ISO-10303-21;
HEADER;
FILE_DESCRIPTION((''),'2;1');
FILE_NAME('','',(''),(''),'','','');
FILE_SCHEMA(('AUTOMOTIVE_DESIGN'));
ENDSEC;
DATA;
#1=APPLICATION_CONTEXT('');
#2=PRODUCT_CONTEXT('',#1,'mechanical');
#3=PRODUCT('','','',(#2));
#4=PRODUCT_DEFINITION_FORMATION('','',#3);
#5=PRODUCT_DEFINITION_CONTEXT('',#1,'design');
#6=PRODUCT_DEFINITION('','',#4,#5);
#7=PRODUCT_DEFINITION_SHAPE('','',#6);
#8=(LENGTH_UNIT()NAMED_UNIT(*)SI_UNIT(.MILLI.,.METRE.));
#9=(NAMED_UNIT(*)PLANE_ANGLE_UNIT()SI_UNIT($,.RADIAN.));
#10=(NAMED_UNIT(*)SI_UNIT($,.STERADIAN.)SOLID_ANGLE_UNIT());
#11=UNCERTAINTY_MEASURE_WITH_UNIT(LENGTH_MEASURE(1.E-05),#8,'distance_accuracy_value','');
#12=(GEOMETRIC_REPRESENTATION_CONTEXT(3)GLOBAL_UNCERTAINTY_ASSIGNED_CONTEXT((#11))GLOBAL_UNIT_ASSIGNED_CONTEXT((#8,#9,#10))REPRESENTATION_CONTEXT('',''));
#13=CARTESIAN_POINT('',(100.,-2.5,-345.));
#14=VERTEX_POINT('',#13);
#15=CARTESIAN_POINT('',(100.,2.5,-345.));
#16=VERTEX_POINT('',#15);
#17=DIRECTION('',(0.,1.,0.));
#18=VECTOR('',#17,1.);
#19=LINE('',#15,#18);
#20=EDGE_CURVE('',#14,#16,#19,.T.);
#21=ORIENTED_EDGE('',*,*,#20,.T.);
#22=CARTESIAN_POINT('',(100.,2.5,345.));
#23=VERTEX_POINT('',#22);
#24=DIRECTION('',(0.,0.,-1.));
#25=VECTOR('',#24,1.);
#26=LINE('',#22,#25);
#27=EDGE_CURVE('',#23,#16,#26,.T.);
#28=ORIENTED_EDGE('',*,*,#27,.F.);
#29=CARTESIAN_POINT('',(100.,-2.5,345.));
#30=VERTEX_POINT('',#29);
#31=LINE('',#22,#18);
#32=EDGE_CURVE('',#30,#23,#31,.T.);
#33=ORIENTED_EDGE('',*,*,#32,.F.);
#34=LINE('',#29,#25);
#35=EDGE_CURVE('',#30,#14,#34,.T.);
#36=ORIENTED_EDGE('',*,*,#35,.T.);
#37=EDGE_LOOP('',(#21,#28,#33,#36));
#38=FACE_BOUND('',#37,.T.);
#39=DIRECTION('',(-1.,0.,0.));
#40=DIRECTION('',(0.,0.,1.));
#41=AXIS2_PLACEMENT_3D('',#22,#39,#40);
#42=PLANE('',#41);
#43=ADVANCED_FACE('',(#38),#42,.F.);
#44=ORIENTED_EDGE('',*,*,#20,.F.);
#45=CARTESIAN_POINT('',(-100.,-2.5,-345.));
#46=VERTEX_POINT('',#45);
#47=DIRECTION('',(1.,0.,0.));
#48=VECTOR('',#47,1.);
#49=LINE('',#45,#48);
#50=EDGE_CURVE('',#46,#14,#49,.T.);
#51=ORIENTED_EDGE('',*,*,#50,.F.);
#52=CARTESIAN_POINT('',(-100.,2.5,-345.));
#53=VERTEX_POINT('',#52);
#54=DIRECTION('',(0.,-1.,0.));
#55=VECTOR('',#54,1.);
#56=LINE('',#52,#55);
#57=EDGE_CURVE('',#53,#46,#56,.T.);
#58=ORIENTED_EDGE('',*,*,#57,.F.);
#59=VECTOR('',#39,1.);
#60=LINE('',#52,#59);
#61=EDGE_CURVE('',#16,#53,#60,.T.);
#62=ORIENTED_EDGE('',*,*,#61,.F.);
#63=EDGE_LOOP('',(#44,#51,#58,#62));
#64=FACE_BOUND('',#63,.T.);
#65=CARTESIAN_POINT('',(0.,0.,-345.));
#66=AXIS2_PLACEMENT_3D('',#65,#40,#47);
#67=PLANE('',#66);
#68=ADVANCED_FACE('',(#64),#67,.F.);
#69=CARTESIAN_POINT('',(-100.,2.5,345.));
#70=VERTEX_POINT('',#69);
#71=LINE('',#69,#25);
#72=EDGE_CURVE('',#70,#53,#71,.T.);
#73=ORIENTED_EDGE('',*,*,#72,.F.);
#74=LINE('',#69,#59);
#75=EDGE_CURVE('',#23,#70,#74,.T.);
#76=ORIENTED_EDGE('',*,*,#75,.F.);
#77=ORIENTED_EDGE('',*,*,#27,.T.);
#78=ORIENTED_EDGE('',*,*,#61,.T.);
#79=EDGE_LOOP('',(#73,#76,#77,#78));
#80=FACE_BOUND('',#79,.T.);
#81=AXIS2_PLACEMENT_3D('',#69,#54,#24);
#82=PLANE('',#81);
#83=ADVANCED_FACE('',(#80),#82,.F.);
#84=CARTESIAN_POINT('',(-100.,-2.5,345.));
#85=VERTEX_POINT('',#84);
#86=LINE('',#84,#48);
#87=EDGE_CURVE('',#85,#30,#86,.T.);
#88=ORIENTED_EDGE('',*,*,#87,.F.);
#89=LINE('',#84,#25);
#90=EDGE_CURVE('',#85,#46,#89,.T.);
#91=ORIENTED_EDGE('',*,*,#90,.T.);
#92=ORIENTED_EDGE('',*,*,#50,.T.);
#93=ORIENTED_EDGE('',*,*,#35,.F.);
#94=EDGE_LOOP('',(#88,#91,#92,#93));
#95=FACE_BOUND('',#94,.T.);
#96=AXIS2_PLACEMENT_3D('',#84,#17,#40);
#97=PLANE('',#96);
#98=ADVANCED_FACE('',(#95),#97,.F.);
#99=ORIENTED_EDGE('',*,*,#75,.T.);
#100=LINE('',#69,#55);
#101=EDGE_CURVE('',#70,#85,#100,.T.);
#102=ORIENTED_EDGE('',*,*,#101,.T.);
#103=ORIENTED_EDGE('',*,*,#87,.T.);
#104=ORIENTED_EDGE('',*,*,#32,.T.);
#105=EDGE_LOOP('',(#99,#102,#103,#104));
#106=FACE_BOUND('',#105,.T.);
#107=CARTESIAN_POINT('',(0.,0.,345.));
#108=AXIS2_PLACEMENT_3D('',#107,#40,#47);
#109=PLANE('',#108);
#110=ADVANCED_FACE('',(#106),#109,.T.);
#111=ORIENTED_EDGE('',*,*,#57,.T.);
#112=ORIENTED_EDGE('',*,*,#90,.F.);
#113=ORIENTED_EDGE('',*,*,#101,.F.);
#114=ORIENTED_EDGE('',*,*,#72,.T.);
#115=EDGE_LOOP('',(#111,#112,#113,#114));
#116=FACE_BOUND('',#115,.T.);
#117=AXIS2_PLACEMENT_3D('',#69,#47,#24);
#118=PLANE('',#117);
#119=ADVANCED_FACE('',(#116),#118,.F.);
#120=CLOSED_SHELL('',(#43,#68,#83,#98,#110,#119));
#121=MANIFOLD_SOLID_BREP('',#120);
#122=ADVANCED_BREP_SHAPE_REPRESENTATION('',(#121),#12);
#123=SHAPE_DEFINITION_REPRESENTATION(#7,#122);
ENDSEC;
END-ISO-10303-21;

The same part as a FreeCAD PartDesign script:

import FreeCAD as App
import Part
import Sketcher

V = App.Vector
Q = App.Units.Quantity


def add_polygon(sketch, points):
    """Adds a closed chain of lines whose ends are joined by coincident constraints."""
    first, n = sketch.GeometryCount, len(points)
    for a, b in zip(points, points[1:] + points[:1]):
        sketch.addGeometry(Part.LineSegment(App.Vector(*a, 0), App.Vector(*b, 0)), False)
    for i in range(n):
        sketch.addConstraint(Sketcher.Constraint("Coincident", first + i, 2, first + (i + 1) % n, 1))

doc = App.newDocument("Part")
params = doc.addObject("Spreadsheet::Sheet", "Params")
for row, (alias, value) in enumerate([
    ("sketch1_width", "200 mm"),
    ("sketch1_height", "5 mm"),
    ("pad1_length", "690 mm"),
], start=1):
    params.set(f"A{row}", alias)
    params.set(f"B{row}", "=" + value)
    params.setAlias(f"B{row}", alias)

body = doc.addObject("PartDesign::Body", "Body")

# Sketch on XY plane
sketch1 = doc.addObject("Sketcher::SketchObject", "Sketch")
body.addObject(sketch1)
sketch1.AttachmentSupport = (doc.XY_Plane, [""])
sketch1.MapMode = "FlatFace"
add_polygon(sketch1, [(-100, 2.5), (-100, -2.5), (100, -2.5), (100, 2.5)])  # lines 0-3
sketch1.addConstraint([
    Sketcher.Constraint("Vertical", 0),
    Sketcher.Constraint("Horizontal", 1),
    Sketcher.Constraint("Vertical", 2),
    Sketcher.Constraint("Horizontal", 3),
    Sketcher.Constraint("Symmetric", 0, 2, 2, 2, -1, 1),
    Sketcher.Constraint("DistanceX", 1, 1, 1, 2, Q("200 mm")),
    Sketcher.Constraint("DistanceY", 0, 2, 0, 1, Q("5 mm")),
])
sketch1.setExpression("Constraints[9]", "Params.sketch1_width")
sketch1.setExpression("Constraints[10]", "Params.sketch1_height")
pad1 = doc.addObject("PartDesign::Pad", "Pad")
body.addObject(pad1)
pad1.Profile = sketch1
pad1.setExpression("Length", "Params.pad1_length")
pad1.Midplane = True

doc.recompute()
